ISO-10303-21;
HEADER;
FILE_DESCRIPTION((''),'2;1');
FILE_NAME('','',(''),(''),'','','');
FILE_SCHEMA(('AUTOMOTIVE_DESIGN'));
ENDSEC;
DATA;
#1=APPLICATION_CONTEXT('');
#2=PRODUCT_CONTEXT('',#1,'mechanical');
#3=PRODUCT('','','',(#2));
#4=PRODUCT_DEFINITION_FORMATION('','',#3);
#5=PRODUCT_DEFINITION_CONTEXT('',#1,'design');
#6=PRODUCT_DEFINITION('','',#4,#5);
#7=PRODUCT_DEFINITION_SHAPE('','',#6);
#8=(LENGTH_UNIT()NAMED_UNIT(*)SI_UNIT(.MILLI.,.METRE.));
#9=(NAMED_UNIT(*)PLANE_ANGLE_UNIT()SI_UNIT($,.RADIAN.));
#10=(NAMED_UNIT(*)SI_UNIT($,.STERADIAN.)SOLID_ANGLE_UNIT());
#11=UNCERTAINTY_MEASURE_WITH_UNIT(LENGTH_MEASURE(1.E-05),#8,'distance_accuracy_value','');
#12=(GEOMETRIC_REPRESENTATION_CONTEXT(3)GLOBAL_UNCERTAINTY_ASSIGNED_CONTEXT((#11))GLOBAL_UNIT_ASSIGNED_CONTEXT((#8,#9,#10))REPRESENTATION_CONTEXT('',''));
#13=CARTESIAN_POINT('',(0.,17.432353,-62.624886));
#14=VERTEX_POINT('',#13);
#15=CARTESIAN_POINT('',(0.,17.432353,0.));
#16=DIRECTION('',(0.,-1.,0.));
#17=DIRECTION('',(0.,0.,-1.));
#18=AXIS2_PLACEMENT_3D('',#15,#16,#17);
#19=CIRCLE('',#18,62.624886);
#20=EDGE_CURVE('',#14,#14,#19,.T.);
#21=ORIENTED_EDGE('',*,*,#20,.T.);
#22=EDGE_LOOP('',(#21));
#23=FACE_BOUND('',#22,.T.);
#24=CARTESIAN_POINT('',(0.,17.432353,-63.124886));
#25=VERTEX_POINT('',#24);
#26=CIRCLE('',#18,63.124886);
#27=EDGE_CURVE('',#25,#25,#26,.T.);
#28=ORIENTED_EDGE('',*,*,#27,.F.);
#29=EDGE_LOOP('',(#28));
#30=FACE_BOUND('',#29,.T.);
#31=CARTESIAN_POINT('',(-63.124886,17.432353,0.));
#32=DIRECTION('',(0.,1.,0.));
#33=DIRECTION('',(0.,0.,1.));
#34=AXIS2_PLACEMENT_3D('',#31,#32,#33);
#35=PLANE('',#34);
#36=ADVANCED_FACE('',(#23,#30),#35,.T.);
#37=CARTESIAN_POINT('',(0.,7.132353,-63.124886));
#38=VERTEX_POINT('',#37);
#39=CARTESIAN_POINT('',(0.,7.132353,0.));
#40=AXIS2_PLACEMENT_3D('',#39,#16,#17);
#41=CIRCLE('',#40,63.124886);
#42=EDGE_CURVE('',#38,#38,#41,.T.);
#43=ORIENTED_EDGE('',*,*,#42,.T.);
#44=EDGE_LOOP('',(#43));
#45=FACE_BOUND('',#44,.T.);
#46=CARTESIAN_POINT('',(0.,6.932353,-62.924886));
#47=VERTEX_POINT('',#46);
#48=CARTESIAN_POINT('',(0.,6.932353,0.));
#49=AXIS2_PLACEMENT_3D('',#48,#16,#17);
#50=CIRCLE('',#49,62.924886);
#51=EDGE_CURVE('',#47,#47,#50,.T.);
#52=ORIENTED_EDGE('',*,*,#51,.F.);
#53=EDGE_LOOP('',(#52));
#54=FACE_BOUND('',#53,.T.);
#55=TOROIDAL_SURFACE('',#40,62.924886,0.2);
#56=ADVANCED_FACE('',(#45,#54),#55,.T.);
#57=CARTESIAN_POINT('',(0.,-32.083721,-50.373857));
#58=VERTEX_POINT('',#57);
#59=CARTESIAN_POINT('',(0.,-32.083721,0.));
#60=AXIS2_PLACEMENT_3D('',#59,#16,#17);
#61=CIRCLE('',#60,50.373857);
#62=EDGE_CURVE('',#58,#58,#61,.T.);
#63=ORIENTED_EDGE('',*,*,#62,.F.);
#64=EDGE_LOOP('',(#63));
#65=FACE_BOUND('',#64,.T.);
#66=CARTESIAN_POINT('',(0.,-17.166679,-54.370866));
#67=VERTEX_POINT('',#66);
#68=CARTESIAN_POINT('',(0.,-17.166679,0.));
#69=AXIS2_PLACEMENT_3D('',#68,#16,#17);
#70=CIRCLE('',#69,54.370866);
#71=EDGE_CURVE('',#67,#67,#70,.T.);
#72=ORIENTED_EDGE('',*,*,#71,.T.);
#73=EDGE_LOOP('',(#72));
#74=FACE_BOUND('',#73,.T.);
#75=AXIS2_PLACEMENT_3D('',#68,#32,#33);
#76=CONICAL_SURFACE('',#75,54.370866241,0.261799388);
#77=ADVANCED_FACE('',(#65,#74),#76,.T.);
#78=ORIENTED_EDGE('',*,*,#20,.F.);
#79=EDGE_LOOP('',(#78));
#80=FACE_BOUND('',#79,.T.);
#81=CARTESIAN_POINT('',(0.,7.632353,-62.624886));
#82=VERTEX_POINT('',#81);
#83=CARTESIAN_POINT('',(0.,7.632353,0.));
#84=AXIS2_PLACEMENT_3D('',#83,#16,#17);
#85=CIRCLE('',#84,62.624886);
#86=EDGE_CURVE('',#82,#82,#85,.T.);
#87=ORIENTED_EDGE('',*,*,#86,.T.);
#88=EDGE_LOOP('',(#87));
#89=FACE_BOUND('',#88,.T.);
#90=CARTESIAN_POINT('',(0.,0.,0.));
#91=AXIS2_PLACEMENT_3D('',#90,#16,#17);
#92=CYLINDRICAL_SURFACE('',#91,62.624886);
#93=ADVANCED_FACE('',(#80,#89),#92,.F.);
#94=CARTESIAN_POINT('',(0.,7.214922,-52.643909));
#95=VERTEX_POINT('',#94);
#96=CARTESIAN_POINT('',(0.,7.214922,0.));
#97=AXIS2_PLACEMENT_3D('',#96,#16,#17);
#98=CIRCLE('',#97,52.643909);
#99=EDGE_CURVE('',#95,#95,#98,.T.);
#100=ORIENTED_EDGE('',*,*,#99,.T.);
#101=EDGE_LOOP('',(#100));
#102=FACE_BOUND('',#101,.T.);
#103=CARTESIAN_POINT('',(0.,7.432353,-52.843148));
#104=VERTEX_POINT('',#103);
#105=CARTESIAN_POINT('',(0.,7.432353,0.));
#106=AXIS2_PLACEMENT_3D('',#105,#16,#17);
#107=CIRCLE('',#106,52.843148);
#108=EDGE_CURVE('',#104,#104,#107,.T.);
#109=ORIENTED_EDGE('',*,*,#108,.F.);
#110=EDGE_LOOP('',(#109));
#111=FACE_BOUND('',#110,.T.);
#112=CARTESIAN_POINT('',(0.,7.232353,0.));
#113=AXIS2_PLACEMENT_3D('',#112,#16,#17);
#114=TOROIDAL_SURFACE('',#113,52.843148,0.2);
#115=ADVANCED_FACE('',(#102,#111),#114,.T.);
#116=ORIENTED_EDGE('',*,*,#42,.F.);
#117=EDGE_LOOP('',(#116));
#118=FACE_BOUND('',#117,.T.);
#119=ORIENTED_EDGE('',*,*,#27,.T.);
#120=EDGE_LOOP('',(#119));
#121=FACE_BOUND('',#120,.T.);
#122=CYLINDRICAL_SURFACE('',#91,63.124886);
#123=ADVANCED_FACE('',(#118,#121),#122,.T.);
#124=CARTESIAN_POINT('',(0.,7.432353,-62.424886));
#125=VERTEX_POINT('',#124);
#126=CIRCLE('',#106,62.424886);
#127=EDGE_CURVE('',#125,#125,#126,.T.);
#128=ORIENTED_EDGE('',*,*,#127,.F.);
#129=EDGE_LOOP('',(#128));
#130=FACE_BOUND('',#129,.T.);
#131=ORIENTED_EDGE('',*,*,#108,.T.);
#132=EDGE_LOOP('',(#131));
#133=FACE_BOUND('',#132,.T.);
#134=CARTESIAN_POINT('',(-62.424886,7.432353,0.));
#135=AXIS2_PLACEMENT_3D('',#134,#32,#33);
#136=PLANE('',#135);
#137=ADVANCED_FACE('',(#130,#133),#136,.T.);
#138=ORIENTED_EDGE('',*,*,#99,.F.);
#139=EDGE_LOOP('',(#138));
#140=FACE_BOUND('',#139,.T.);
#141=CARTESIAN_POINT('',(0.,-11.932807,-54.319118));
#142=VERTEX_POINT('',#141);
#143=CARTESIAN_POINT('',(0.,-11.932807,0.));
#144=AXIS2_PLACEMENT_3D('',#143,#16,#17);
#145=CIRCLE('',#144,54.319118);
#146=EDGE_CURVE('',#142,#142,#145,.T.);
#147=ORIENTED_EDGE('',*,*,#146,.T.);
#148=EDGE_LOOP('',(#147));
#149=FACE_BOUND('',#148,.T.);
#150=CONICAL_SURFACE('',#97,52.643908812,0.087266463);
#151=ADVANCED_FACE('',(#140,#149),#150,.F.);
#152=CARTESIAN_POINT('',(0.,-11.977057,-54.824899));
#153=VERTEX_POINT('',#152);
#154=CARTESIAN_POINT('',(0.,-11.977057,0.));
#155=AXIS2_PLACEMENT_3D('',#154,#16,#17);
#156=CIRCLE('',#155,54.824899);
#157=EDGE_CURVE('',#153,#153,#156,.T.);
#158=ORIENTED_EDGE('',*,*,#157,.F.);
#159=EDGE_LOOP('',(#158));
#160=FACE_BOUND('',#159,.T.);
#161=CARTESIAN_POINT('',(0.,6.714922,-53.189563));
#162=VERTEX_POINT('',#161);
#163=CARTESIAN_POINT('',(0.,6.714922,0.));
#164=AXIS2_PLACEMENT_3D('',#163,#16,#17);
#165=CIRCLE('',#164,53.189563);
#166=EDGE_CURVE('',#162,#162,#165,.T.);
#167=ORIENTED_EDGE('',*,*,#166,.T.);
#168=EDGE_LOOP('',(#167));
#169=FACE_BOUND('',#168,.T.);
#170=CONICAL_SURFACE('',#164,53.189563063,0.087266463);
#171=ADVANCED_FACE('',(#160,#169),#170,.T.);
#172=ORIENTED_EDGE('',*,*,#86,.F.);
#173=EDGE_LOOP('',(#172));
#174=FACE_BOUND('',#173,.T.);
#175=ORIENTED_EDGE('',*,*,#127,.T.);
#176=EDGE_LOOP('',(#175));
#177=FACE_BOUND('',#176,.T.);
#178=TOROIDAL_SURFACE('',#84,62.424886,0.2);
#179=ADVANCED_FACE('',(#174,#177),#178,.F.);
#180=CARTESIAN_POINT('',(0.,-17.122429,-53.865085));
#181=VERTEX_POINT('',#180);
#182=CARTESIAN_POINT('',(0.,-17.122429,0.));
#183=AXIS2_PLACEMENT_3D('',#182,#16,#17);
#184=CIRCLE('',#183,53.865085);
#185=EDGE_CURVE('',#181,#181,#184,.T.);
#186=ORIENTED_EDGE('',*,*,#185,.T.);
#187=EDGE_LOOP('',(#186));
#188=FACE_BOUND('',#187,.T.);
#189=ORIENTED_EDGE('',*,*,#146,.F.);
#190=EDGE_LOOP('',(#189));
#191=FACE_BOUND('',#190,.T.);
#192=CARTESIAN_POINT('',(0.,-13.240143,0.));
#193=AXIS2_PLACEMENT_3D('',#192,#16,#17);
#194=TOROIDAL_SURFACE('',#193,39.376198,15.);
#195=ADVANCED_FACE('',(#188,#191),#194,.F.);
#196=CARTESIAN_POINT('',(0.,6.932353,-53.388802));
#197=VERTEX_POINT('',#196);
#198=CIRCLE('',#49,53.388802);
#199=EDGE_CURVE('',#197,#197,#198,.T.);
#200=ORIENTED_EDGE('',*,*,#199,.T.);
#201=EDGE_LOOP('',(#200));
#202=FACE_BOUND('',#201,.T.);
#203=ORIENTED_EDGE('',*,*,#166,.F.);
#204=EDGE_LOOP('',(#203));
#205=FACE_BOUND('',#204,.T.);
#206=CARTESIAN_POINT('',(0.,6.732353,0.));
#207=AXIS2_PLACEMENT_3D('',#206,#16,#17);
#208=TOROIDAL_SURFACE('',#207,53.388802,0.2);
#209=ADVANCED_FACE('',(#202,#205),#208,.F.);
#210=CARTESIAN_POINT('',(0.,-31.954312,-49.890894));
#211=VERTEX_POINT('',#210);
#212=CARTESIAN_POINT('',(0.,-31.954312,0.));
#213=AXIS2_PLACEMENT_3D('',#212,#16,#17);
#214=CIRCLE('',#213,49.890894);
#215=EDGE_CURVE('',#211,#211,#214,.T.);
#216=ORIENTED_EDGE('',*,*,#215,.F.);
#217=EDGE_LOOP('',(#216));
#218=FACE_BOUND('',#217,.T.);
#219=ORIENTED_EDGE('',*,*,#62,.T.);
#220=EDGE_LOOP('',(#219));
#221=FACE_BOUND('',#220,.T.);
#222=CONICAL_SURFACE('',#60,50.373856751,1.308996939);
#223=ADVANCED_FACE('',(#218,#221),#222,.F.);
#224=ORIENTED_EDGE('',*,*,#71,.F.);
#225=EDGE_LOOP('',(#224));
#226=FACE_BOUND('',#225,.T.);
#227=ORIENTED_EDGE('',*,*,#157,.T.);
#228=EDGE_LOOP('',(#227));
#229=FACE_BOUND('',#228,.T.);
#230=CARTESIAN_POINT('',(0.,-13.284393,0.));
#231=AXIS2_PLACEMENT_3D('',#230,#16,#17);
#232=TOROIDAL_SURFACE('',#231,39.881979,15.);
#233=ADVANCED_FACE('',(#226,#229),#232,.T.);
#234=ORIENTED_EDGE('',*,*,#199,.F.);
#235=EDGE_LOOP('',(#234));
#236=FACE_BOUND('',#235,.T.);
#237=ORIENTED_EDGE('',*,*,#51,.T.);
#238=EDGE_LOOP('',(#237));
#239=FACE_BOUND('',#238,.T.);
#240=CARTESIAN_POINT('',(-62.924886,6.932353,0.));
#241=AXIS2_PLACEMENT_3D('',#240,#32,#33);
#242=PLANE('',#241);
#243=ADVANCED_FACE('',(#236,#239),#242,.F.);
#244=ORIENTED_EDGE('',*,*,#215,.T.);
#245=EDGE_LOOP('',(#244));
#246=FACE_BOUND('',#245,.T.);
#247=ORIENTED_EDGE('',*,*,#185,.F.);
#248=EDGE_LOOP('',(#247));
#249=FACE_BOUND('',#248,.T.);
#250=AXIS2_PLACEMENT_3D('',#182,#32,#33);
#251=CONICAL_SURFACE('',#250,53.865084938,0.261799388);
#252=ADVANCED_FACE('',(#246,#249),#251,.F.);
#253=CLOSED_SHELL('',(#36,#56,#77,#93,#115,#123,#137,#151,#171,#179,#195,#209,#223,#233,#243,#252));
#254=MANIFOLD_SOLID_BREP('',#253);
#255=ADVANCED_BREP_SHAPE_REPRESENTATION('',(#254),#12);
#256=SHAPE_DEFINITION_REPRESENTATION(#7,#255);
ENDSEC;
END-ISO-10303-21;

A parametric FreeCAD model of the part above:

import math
import FreeCAD as App
import Part
import Sketcher
from FreeCAD import Vector
Q = App.Units.Quantity

doc = App.newDocument("Part")
body = doc.addObject("PartDesign::Body", "Body")

# Sketch on XY plane
sketch1 = body.newObject("Sketcher::SketchObject", "Sketch")
sketch1.AttachmentSupport = (doc.getObject("XY_Plane"), [""])
sketch1.MapMode = "FlatFace"
sketch1.addGeometry(Part.LineSegment(Vector(-62.624886, 7.632353, 0), Vector(-62.624886, 17.432353, 0)), False)
sketch1.addGeometry(Part.LineSegment(Vector(-62.624886, 17.432353, 0), Vector(-63.124886, 17.432353, 0)), False)
sketch1.addGeometry(Part.LineSegment(Vector(-63.124886, 17.432353, 0), Vector(-63.124886, 7.132353, 0)), False)
sketch1.addGeometry(Part.ArcOfCircle(Part.Circle(Vector(-62.924886, 7.132353, 0), Vector(0, 0, 1), 0.2), math.radians(-180), math.radians(-90)), False)
sketch1.addGeometry(Part.LineSegment(Vector(-62.924886, 6.932353, 0), Vector(-53.388802, 6.932353, 0)), False)
sketch1.addGeometry(Part.ArcOfCircle(Part.Circle(Vector(-53.388802, 6.732353, 0), Vector(0, 0, 1), 0.2), math.radians(-5), math.radians(90)), False)
sketch1.addGeometry(Part.LineSegment(Vector(-53.189563, 6.714922, 0), Vector(-54.824899, -11.977057, 0)), False)
sketch1.addGeometry(Part.ArcOfCircle(Part.Circle(Vector(-39.881979, -13.284393, 0), Vector(0, 0, 1), 15), math.radians(175), math.radians(195)), False)
sketch1.addGeometry(Part.LineSegment(Vector(-54.370866, -17.166679, 0), Vector(-50.373857, -32.083721, 0)), False)
sketch1.addGeometry(Part.LineSegment(Vector(-50.373857, -32.083721, 0), Vector(-49.890894, -31.954312, 0)), False)
sketch1.addGeometry(Part.LineSegment(Vector(-49.890894, -31.954312, 0), Vector(-53.865085, -17.122429, 0)), False)
sketch1.addGeometry(Part.ArcOfCircle(Part.Circle(Vector(-39.376198, -13.240143, 0), Vector(0, 0, 1), 15), math.radians(175), math.radians(195)), False)
sketch1.addGeometry(Part.LineSegment(Vector(-54.319118, -11.932807, 0), Vector(-52.643909, 7.214922, 0)), False)
sketch1.addGeometry(Part.ArcOfCircle(Part.Circle(Vector(-52.843148, 7.232353, 0), Vector(0, 0, 1), 0.2), math.radians(-5), math.radians(90)), False)
sketch1.addGeometry(Part.LineSegment(Vector(-52.843148, 7.432353, 0), Vector(-62.424886, 7.432353, 0)), False)
sketch1.addGeometry(Part.ArcOfCircle(Part.Circle(Vector(-62.424886, 7.632353, 0), Vector(0, 0, 1), 0.2), math.radians(-180), math.radians(-90)), False)
sketch1.addConstraint(Sketcher.Constraint("Coincident", 0, 2, 1, 1))
sketch1.addConstraint(Sketcher.Constraint("Coincident", 1, 2, 2, 1))
sketch1.addConstraint(Sketcher.Constraint("Tangent", 2, 2, 3, 1))
sketch1.addConstraint(Sketcher.Constraint("Tangent", 3, 2, 4, 1))
sketch1.addConstraint(Sketcher.Constraint("Tangent", 4, 2, 5, 2))
sketch1.addConstraint(Sketcher.Constraint("Tangent", 5, 1, 6, 1))
sketch1.addConstraint(Sketcher.Constraint("Tangent", 6, 2, 7, 1))
sketch1.addConstraint(Sketcher.Constraint("Tangent", 7, 2, 8, 1))
sketch1.addConstraint(Sketcher.Constraint("Coincident", 8, 2, 9, 1))
sketch1.addConstraint(Sketcher.Constraint("Coincident", 9, 2, 10, 1))
sketch1.addConstraint(Sketcher.Constraint("Tangent", 10, 2, 11, 2))
sketch1.addConstraint(Sketcher.Constraint("Tangent", 11, 1, 12, 1))
sketch1.addConstraint(Sketcher.Constraint("Tangent", 12, 2, 13, 1))
sketch1.addConstraint(Sketcher.Constraint("Tangent", 13, 2, 14, 1))
sketch1.addConstraint(Sketcher.Constraint("Tangent", 14, 2, 15, 2))
sketch1.addConstraint(Sketcher.Constraint("Tangent", 15, 1, 0, 1))
sketch1.addConstraint(Sketcher.Constraint("Vertical", 0))
sketch1.addConstraint(Sketcher.Constraint("Horizontal", 1))
sketch1.addConstraint(Sketcher.Constraint("Vertical", 2))
sketch1.addConstraint(Sketcher.Constraint("Horizontal", 4))
sketch1.addConstraint(Sketcher.Constraint("Horizontal", 14))
sketch1.addConstraint(Sketcher.Constraint("Equal", 3, 5))
sketch1.addConstraint(Sketcher.Constraint("Equal", 7, 11))
sketch1.addConstraint(Sketcher.Constraint("Equal", 5, 13))
sketch1.addConstraint(Sketcher.Constraint("Equal", 13, 15))
sketch1.addConstraint(Sketcher.Constraint("Perpendicular", 8, 9))
sketch1.addConstraint(Sketcher.Constraint("Perpendicular", 9, 10))
sketch1.addConstraint(Sketcher.Constraint("Parallel", 6, 12))
sketch1.addConstraint(Sketcher.Constraint("Radius", 7, Q("15 mm")))
sketch1.addConstraint(Sketcher.Constraint("Radius", 3, Q("0.2 mm")))
sketch1.addConstraint(Sketcher.Constraint("Angle", 6, Q("-95 deg")))
sketch1.addConstraint(Sketcher.Constraint("Angle", 8, Q("-75 deg")))
sketch1.addConstraint(Sketcher.Constraint("DistanceX", 1, 2, 1, 1, Q("0.5 mm")))
sketch1.addConstraint(Sketcher.Constraint("DistanceY", 0, 1, 0, 2, Q("9.8 mm")))
sketch1.addConstraint(Sketcher.Constraint("DistanceY", 2, 2, 2, 1, Q("10.3 mm")))
sketch1.addConstraint(Sketcher.Constraint("Distance", 9, Q("0.5 mm")))
sketch1.addConstraint(Sketcher.Constraint("DistanceX", 14, 2, 14, 1, Q("9.581738 mm")))
sketch1.addConstraint(Sketcher.Constraint("DistanceX", 6, 2, -1, 1, Q("54.824899 mm")))
sketch1.addConstraint(Sketcher.Constraint("DistanceX", 6, 2, 11, 3, Q("15.448702 mm")))
sketch1.addConstraint(Sketcher.Constraint("DistanceY", 7, 2, 5, 1, Q("23.881601 mm")))
sketch1.addConstraint(Sketcher.Constraint("Distance", 8, Q("15.443259 mm")))
sketch1.addConstraint(Sketcher.Constraint("DistanceY", -1, 1, 5, 1, Q("6.714922 mm")))
revolution = body.newObject("PartDesign::Revolution", "Revolution")
revolution.Profile = sketch1
revolution.ReferenceAxis = (sketch1, ["V_Axis"])
revolution.Angle = 360

doc.recompute()
